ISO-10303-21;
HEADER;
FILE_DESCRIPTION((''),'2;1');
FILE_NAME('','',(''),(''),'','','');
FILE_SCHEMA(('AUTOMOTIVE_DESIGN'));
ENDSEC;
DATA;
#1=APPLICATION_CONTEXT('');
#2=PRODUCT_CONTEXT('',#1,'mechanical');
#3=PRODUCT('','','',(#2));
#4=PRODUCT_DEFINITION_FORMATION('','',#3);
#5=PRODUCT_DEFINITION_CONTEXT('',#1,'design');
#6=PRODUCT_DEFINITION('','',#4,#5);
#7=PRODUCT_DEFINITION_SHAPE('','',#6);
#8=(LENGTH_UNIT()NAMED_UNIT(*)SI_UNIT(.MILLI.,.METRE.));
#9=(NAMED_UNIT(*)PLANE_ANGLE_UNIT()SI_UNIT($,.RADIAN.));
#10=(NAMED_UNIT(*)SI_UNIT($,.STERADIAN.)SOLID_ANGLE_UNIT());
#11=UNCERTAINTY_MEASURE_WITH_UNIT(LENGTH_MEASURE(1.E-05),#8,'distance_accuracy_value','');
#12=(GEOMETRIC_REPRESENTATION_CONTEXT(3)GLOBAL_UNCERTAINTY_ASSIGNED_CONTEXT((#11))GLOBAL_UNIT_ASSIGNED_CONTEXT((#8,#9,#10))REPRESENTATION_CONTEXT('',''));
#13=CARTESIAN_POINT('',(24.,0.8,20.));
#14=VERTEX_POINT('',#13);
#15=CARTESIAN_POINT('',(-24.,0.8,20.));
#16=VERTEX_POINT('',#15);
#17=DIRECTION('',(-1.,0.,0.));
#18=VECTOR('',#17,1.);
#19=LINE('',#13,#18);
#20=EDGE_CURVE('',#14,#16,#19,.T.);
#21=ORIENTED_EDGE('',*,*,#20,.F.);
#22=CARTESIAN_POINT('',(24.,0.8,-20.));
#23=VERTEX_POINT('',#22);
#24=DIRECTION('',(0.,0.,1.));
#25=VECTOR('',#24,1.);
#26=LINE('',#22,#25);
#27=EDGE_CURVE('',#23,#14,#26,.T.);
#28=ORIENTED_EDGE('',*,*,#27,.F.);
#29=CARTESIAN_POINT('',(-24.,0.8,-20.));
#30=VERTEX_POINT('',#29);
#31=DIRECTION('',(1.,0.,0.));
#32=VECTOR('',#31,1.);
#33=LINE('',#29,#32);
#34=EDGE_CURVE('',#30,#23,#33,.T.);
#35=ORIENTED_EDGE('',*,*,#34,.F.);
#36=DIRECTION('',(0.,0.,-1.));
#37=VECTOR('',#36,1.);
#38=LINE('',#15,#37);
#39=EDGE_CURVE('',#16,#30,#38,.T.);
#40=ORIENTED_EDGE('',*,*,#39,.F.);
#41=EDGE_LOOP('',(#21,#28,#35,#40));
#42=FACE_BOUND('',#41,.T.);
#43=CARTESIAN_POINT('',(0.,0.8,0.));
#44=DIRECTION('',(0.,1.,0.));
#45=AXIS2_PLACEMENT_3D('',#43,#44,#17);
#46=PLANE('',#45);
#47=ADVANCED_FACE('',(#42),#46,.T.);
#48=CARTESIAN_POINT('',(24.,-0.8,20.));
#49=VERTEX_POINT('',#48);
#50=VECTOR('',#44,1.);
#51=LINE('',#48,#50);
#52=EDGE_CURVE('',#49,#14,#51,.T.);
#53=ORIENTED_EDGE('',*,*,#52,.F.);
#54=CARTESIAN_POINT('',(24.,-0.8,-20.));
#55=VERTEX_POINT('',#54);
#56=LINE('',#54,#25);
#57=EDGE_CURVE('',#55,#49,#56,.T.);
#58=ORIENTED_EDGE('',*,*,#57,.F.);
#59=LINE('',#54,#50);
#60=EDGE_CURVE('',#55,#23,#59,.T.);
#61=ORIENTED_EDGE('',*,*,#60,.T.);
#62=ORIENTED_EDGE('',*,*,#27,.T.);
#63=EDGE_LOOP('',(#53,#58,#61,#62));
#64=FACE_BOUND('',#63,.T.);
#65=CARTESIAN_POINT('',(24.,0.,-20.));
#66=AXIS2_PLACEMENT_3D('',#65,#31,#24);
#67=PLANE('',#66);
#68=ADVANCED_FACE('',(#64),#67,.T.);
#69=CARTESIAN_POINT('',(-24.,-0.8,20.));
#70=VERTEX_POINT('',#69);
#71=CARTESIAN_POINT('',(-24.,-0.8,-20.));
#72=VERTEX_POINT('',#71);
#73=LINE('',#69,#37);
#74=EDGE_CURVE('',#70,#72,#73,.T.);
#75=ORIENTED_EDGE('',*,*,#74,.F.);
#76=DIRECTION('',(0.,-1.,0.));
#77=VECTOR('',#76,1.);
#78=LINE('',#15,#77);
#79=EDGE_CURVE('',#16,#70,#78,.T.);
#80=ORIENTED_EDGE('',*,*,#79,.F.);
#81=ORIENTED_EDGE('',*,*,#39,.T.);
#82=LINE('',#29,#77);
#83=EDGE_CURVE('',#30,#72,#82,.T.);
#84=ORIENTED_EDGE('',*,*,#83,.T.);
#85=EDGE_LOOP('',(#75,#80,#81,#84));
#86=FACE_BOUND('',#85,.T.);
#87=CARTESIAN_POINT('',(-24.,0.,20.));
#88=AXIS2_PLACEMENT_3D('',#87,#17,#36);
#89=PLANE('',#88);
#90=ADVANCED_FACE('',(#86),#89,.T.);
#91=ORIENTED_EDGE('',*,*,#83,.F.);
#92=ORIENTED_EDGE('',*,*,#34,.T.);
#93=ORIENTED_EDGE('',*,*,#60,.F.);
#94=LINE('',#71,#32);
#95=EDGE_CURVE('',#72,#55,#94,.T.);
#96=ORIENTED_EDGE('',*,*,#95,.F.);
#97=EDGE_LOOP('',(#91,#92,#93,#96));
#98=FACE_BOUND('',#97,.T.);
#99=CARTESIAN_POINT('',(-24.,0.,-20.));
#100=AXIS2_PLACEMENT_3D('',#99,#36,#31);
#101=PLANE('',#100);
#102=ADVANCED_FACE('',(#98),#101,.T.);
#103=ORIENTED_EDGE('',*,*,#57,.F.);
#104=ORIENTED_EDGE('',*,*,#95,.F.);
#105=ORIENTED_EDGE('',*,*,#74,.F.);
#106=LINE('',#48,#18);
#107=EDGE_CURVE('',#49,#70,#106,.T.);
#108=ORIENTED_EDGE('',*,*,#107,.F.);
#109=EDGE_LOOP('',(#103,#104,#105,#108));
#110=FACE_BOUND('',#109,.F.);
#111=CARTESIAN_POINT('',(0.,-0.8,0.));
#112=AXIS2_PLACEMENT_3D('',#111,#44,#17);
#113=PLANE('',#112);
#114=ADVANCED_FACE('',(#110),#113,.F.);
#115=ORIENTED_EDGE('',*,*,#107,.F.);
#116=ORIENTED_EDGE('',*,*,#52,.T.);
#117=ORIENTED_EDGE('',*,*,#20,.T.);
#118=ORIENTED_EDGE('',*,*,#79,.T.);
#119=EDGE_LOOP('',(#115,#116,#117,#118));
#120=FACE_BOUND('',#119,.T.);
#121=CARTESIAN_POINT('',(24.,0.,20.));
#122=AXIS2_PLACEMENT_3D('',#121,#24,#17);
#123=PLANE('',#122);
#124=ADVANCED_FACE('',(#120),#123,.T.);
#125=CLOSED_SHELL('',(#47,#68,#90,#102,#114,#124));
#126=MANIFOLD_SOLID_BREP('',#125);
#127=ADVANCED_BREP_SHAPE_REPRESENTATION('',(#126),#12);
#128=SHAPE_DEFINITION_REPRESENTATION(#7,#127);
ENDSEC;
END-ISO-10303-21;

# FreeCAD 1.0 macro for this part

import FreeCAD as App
import Part
import Sketcher


def add_polygon(sketch, points):
    """Adds a closed chain of lines whose ends are joined by coincident constraints."""
    first, n = sketch.GeometryCount, len(points)
    for a, b in zip(points, points[1:] + points[:1]):
        sketch.addGeometry(Part.LineSegment(App.Vector(*a, 0), App.Vector(*b, 0)), False)
    for i in range(n):
        sketch.addConstraint(Sketcher.Constraint("Coincident", first + i, 2, first + (i + 1) % n, 1))

doc = App.newDocument("Part")
params = doc.addObject("Spreadsheet::Sheet", "Params")
for row, (alias, value) in enumerate([
    ("sketch1_width", "48 mm"),
    ("sketch1_height", "40 mm"),
    ("pad1_length", "1.6 mm"),
], start=1):
    params.set(f"A{row}", alias)
    params.set(f"B{row}", "=" + value)
    params.setAlias(f"B{row}", alias)

body = doc.addObject("PartDesign::Body", "Body")

# Sketch on XZ plane
sketch1 = doc.addObject("Sketcher::SketchObject", "Sketch")
body.addObject(sketch1)
sketch1.AttachmentSupport = (doc.XZ_Plane, [""])
sketch1.MapMode = "FlatFace"
add_polygon(sketch1, [(-24, 20), (24, 20), (24, -20), (-24, -20)])  # lines 0-3
sketch1.addConstraint([
    Sketcher.Constraint("Horizontal", 0),
    Sketcher.Constraint("Vertical", 1),
    Sketcher.Constraint("Horizontal", 2),
    Sketcher.Constraint("Vertical", 3),
    Sketcher.Constraint("Symmetric", 0, 2, 2, 2, -1, 1),
    Sketcher.Constraint("DistanceX", 0, 1, 0, 2, 48.0),
    Sketcher.Constraint("DistanceY", 1, 2, 1, 1, 40.0),
])
sketch1.setExpression("Constraints[9]", "Params.sketch1_width")
sketch1.setExpression("Constraints[10]", "Params.sketch1_height")
pad1 = doc.addObject("PartDesign::Pad", "Pad")
body.addObject(pad1)
pad1.Profile = sketch1
pad1.setExpression("Length", "Params.pad1_length")
pad1.Midplane = True

doc.recompute()
